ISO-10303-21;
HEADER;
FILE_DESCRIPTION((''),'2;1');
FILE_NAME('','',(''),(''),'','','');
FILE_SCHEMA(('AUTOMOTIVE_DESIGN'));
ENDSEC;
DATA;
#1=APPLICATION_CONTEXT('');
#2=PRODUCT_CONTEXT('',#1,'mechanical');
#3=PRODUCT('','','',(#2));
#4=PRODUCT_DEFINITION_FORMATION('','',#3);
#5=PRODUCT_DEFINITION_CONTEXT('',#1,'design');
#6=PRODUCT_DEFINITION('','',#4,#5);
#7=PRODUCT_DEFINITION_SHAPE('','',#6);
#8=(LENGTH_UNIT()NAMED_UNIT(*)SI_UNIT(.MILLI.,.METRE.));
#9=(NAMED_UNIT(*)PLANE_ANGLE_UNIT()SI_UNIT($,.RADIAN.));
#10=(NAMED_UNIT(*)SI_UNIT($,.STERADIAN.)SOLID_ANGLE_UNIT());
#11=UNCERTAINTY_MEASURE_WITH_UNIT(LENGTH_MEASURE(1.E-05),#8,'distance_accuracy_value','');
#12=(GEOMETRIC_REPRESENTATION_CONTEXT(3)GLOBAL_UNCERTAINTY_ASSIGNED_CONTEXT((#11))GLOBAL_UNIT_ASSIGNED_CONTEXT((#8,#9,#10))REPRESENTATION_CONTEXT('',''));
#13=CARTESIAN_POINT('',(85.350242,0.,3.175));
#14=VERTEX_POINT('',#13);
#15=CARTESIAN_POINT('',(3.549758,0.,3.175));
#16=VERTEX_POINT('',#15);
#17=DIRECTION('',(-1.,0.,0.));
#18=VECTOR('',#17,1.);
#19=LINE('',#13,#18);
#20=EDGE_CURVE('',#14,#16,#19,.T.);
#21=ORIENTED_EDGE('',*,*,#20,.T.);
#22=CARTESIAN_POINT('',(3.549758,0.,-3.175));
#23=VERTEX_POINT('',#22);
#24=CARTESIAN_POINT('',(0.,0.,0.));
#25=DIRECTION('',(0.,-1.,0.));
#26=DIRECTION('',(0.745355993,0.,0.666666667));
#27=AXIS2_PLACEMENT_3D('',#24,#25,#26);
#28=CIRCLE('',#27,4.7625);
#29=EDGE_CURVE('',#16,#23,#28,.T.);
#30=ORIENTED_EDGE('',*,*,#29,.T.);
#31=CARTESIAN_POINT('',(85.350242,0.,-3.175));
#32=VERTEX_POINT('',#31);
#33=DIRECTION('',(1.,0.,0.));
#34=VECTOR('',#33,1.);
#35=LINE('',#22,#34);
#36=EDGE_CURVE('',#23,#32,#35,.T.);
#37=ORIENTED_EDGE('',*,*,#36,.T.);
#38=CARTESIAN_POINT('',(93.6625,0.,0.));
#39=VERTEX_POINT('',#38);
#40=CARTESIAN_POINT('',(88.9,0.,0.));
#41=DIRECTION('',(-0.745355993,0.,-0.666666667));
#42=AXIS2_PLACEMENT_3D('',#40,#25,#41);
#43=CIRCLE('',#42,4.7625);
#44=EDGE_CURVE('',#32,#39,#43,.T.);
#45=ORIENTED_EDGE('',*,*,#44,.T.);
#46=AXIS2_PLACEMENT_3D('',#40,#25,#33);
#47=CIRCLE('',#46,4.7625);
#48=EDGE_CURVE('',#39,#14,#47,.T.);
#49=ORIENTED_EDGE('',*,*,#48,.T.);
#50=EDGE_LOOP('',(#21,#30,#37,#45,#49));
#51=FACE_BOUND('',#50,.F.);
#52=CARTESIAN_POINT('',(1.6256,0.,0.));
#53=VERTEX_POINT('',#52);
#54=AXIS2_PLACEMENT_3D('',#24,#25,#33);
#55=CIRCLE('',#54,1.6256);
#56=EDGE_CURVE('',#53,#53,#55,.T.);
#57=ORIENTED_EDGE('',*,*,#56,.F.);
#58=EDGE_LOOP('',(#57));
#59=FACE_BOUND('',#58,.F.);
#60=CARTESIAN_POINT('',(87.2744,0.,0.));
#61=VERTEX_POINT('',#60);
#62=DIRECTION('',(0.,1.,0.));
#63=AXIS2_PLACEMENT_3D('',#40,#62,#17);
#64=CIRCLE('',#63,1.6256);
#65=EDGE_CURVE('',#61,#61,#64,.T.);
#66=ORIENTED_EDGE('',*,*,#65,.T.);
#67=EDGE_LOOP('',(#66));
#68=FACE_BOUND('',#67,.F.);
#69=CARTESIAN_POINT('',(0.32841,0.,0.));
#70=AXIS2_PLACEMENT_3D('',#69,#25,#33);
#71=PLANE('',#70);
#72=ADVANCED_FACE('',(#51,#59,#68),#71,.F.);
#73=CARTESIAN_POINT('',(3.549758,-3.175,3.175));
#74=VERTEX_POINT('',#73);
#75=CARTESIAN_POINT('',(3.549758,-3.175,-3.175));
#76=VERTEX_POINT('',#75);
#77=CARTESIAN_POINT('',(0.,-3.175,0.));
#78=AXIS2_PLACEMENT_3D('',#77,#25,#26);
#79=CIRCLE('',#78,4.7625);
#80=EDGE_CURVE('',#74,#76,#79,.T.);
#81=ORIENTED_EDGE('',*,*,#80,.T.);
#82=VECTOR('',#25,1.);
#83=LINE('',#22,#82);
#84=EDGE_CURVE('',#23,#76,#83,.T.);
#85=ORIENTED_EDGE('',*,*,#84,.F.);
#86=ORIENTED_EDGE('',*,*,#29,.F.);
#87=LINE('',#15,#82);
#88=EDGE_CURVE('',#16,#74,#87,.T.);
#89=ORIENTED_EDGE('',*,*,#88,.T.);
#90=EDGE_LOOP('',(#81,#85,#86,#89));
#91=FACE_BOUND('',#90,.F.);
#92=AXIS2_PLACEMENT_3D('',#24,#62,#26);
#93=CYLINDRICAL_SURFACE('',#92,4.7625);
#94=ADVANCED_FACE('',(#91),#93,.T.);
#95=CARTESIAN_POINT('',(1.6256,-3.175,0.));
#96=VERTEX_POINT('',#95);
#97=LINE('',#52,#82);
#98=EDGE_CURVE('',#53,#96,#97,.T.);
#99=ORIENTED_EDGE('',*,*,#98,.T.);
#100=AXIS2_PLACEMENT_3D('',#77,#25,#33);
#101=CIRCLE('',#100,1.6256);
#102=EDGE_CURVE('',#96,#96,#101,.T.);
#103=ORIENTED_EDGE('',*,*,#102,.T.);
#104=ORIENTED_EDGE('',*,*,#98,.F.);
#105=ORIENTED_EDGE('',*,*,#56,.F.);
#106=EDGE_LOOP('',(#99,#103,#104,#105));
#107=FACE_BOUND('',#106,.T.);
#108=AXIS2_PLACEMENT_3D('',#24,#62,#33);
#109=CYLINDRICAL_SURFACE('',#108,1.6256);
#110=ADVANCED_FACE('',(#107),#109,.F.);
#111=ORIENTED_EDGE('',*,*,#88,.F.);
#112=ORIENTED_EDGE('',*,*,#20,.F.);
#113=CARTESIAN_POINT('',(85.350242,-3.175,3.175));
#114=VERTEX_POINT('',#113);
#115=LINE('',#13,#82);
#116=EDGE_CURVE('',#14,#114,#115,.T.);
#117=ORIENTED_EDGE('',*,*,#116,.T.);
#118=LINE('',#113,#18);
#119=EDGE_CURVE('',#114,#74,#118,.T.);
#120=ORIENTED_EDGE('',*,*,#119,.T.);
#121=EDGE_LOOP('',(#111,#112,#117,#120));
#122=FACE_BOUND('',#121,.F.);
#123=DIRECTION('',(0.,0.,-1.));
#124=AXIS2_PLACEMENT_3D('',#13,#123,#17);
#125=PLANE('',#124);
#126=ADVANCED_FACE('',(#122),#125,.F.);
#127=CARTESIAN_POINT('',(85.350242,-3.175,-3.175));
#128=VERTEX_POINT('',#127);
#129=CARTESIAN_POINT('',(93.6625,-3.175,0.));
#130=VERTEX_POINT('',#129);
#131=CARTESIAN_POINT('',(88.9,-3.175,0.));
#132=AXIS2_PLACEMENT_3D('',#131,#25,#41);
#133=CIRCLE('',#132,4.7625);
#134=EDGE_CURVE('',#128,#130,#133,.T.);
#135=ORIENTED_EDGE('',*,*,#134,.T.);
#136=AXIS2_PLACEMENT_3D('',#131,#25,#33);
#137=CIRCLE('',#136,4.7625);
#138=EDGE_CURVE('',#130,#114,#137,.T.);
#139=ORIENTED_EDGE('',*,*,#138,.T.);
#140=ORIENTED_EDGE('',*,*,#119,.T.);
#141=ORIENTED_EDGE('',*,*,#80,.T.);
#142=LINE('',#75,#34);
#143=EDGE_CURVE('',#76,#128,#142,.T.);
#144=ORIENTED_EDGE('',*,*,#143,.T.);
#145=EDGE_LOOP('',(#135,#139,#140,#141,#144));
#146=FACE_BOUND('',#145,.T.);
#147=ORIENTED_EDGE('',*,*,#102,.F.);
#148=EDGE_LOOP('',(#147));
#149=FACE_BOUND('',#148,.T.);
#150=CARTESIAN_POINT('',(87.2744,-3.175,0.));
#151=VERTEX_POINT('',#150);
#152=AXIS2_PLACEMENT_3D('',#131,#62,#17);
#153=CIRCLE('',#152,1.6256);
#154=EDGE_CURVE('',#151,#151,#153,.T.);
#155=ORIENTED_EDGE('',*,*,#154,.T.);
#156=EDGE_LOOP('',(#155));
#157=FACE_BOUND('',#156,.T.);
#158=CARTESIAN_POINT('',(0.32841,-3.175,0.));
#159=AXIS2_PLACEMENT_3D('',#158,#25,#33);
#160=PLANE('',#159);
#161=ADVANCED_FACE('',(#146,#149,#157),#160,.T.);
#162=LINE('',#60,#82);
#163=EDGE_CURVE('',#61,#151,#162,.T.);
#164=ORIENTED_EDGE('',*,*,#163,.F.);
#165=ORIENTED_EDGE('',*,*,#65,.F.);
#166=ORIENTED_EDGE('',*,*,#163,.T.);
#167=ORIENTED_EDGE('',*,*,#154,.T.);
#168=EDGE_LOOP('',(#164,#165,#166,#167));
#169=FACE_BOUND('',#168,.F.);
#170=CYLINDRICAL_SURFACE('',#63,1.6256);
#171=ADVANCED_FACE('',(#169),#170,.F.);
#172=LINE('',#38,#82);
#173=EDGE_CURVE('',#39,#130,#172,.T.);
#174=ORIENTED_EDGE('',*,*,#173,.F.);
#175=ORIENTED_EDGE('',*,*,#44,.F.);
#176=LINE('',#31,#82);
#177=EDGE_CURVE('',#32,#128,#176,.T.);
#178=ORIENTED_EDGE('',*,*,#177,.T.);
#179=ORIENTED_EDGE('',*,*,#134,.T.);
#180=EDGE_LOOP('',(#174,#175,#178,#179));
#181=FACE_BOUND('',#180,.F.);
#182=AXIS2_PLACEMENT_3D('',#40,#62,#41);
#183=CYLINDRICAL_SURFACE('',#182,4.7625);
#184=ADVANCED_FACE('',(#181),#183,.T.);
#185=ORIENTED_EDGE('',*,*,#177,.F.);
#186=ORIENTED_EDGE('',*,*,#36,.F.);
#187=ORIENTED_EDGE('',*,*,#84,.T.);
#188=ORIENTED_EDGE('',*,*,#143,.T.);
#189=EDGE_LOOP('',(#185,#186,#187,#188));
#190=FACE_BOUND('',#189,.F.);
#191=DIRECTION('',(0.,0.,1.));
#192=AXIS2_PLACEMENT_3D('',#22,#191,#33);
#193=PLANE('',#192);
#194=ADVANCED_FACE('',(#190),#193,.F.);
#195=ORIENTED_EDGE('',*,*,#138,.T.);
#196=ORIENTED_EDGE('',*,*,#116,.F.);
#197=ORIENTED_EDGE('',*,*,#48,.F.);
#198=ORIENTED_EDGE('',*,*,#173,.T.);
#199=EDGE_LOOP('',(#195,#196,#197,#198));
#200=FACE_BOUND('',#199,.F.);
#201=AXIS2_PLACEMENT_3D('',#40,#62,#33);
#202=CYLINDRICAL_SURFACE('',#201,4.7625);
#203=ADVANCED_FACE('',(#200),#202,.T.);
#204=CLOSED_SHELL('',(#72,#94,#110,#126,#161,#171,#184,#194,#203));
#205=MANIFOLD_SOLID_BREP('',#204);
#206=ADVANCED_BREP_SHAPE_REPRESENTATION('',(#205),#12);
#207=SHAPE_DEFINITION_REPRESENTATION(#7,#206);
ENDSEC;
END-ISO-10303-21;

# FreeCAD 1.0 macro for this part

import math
import FreeCAD as App
import Part
import Sketcher

V = App.Vector
Q = App.Units.Quantity

doc = App.newDocument("Part")
params = doc.addObject("Spreadsheet::Sheet", "Params")
for row, (alias, value) in enumerate([
    ("sketch1_diameter", "0.128 in"),
    ("sketch1_radius", "0.1875 in"),
    ("pad1_length", "0.125 in"),
], start=1):
    params.set(f"A{row}", alias)
    params.set(f"B{row}", "=" + value)
    params.setAlias(f"B{row}", alias)

body = doc.addObject("PartDesign::Body", "Body")

sketch1 = body.newObject("Sketcher::SketchObject", "Sketch")
sketch1.AttachmentSupport = (doc.getObject("XZ_Plane"), [""])
sketch1.MapMode = "FlatFace"
sketch1.addGeometry([
    Part.LineSegment(V(85.4, 3.2, 0), V(3.5, 3.2, 0)),
    Part.ArcOfCircle(Part.Circle(V(0, 0, 0), V(0, 0, 1), 4.8), math.radians(42), math.radians(318)),
    Part.LineSegment(V(3.5, -3.2, 0), V(85.4, -3.2, 0)),
    Part.ArcOfCircle(Part.Circle(V(88.9, 0, 0), V(0, 0, 1), 4.8), math.radians(-138), math.radians(0)),
    Part.ArcOfCircle(Part.Circle(V(88.9, 0, 0), V(0, 0, 1), 4.8), math.radians(0), math.radians(138)),
    Part.Circle(V(88.9, 0, 0), V(0, 0, 1), 1.6),
    Part.Circle(V(0, 0, 0), V(0, 0, 1), 1.6),
], False)
sketch1.addConstraint([
    Sketcher.Constraint("Coincident", 0, 2, 1, 1),
    Sketcher.Constraint("Coincident", 1, 2, 2, 1),
    Sketcher.Constraint("Coincident", 2, 2, 3, 1),
    Sketcher.Constraint("Tangent", 3, 2, 4, 1),
    Sketcher.Constraint("Coincident", 4, 2, 0, 1),
    Sketcher.Constraint("Horizontal", 0),
    Sketcher.Constraint("Horizontal", 2),
    Sketcher.Constraint("Coincident", 1, 3, -1, 1),
    Sketcher.Constraint("Coincident", 6, 3, -1, 1),
    Sketcher.Constraint("Coincident", 5, 3, 3, 3),
    Sketcher.Constraint("Equal", 1, 3),
    Sketcher.Constraint("Equal", 3, 4),
    Sketcher.Constraint("Equal", 5, 6),
    Sketcher.Constraint("Symmetric", 2, 2, 4, 2, -1),
    Sketcher.Constraint("PointOnObject", 3, 2, -1),
    Sketcher.Constraint("Diameter", 5, Q("0.128 in")),
    Sketcher.Constraint("Radius", 1, Q("0.1875 in")),
    Sketcher.Constraint("DistanceX", -1, 1, 3, 3, Q("3.5 in")),
    Sketcher.Constraint("DistanceY", 1, 2, 0, 2, Q("0.25 in")),
])
sketch1.setExpression("Constraints[15]", "Params.sketch1_diameter")
sketch1.setExpression("Constraints[16]", "Params.sketch1_radius")
pad1 = body.newObject("PartDesign::Pad", "Pad")
pad1.Profile = sketch1
pad1.setExpression("Length", "Params.pad1_length")

doc.recompute()
